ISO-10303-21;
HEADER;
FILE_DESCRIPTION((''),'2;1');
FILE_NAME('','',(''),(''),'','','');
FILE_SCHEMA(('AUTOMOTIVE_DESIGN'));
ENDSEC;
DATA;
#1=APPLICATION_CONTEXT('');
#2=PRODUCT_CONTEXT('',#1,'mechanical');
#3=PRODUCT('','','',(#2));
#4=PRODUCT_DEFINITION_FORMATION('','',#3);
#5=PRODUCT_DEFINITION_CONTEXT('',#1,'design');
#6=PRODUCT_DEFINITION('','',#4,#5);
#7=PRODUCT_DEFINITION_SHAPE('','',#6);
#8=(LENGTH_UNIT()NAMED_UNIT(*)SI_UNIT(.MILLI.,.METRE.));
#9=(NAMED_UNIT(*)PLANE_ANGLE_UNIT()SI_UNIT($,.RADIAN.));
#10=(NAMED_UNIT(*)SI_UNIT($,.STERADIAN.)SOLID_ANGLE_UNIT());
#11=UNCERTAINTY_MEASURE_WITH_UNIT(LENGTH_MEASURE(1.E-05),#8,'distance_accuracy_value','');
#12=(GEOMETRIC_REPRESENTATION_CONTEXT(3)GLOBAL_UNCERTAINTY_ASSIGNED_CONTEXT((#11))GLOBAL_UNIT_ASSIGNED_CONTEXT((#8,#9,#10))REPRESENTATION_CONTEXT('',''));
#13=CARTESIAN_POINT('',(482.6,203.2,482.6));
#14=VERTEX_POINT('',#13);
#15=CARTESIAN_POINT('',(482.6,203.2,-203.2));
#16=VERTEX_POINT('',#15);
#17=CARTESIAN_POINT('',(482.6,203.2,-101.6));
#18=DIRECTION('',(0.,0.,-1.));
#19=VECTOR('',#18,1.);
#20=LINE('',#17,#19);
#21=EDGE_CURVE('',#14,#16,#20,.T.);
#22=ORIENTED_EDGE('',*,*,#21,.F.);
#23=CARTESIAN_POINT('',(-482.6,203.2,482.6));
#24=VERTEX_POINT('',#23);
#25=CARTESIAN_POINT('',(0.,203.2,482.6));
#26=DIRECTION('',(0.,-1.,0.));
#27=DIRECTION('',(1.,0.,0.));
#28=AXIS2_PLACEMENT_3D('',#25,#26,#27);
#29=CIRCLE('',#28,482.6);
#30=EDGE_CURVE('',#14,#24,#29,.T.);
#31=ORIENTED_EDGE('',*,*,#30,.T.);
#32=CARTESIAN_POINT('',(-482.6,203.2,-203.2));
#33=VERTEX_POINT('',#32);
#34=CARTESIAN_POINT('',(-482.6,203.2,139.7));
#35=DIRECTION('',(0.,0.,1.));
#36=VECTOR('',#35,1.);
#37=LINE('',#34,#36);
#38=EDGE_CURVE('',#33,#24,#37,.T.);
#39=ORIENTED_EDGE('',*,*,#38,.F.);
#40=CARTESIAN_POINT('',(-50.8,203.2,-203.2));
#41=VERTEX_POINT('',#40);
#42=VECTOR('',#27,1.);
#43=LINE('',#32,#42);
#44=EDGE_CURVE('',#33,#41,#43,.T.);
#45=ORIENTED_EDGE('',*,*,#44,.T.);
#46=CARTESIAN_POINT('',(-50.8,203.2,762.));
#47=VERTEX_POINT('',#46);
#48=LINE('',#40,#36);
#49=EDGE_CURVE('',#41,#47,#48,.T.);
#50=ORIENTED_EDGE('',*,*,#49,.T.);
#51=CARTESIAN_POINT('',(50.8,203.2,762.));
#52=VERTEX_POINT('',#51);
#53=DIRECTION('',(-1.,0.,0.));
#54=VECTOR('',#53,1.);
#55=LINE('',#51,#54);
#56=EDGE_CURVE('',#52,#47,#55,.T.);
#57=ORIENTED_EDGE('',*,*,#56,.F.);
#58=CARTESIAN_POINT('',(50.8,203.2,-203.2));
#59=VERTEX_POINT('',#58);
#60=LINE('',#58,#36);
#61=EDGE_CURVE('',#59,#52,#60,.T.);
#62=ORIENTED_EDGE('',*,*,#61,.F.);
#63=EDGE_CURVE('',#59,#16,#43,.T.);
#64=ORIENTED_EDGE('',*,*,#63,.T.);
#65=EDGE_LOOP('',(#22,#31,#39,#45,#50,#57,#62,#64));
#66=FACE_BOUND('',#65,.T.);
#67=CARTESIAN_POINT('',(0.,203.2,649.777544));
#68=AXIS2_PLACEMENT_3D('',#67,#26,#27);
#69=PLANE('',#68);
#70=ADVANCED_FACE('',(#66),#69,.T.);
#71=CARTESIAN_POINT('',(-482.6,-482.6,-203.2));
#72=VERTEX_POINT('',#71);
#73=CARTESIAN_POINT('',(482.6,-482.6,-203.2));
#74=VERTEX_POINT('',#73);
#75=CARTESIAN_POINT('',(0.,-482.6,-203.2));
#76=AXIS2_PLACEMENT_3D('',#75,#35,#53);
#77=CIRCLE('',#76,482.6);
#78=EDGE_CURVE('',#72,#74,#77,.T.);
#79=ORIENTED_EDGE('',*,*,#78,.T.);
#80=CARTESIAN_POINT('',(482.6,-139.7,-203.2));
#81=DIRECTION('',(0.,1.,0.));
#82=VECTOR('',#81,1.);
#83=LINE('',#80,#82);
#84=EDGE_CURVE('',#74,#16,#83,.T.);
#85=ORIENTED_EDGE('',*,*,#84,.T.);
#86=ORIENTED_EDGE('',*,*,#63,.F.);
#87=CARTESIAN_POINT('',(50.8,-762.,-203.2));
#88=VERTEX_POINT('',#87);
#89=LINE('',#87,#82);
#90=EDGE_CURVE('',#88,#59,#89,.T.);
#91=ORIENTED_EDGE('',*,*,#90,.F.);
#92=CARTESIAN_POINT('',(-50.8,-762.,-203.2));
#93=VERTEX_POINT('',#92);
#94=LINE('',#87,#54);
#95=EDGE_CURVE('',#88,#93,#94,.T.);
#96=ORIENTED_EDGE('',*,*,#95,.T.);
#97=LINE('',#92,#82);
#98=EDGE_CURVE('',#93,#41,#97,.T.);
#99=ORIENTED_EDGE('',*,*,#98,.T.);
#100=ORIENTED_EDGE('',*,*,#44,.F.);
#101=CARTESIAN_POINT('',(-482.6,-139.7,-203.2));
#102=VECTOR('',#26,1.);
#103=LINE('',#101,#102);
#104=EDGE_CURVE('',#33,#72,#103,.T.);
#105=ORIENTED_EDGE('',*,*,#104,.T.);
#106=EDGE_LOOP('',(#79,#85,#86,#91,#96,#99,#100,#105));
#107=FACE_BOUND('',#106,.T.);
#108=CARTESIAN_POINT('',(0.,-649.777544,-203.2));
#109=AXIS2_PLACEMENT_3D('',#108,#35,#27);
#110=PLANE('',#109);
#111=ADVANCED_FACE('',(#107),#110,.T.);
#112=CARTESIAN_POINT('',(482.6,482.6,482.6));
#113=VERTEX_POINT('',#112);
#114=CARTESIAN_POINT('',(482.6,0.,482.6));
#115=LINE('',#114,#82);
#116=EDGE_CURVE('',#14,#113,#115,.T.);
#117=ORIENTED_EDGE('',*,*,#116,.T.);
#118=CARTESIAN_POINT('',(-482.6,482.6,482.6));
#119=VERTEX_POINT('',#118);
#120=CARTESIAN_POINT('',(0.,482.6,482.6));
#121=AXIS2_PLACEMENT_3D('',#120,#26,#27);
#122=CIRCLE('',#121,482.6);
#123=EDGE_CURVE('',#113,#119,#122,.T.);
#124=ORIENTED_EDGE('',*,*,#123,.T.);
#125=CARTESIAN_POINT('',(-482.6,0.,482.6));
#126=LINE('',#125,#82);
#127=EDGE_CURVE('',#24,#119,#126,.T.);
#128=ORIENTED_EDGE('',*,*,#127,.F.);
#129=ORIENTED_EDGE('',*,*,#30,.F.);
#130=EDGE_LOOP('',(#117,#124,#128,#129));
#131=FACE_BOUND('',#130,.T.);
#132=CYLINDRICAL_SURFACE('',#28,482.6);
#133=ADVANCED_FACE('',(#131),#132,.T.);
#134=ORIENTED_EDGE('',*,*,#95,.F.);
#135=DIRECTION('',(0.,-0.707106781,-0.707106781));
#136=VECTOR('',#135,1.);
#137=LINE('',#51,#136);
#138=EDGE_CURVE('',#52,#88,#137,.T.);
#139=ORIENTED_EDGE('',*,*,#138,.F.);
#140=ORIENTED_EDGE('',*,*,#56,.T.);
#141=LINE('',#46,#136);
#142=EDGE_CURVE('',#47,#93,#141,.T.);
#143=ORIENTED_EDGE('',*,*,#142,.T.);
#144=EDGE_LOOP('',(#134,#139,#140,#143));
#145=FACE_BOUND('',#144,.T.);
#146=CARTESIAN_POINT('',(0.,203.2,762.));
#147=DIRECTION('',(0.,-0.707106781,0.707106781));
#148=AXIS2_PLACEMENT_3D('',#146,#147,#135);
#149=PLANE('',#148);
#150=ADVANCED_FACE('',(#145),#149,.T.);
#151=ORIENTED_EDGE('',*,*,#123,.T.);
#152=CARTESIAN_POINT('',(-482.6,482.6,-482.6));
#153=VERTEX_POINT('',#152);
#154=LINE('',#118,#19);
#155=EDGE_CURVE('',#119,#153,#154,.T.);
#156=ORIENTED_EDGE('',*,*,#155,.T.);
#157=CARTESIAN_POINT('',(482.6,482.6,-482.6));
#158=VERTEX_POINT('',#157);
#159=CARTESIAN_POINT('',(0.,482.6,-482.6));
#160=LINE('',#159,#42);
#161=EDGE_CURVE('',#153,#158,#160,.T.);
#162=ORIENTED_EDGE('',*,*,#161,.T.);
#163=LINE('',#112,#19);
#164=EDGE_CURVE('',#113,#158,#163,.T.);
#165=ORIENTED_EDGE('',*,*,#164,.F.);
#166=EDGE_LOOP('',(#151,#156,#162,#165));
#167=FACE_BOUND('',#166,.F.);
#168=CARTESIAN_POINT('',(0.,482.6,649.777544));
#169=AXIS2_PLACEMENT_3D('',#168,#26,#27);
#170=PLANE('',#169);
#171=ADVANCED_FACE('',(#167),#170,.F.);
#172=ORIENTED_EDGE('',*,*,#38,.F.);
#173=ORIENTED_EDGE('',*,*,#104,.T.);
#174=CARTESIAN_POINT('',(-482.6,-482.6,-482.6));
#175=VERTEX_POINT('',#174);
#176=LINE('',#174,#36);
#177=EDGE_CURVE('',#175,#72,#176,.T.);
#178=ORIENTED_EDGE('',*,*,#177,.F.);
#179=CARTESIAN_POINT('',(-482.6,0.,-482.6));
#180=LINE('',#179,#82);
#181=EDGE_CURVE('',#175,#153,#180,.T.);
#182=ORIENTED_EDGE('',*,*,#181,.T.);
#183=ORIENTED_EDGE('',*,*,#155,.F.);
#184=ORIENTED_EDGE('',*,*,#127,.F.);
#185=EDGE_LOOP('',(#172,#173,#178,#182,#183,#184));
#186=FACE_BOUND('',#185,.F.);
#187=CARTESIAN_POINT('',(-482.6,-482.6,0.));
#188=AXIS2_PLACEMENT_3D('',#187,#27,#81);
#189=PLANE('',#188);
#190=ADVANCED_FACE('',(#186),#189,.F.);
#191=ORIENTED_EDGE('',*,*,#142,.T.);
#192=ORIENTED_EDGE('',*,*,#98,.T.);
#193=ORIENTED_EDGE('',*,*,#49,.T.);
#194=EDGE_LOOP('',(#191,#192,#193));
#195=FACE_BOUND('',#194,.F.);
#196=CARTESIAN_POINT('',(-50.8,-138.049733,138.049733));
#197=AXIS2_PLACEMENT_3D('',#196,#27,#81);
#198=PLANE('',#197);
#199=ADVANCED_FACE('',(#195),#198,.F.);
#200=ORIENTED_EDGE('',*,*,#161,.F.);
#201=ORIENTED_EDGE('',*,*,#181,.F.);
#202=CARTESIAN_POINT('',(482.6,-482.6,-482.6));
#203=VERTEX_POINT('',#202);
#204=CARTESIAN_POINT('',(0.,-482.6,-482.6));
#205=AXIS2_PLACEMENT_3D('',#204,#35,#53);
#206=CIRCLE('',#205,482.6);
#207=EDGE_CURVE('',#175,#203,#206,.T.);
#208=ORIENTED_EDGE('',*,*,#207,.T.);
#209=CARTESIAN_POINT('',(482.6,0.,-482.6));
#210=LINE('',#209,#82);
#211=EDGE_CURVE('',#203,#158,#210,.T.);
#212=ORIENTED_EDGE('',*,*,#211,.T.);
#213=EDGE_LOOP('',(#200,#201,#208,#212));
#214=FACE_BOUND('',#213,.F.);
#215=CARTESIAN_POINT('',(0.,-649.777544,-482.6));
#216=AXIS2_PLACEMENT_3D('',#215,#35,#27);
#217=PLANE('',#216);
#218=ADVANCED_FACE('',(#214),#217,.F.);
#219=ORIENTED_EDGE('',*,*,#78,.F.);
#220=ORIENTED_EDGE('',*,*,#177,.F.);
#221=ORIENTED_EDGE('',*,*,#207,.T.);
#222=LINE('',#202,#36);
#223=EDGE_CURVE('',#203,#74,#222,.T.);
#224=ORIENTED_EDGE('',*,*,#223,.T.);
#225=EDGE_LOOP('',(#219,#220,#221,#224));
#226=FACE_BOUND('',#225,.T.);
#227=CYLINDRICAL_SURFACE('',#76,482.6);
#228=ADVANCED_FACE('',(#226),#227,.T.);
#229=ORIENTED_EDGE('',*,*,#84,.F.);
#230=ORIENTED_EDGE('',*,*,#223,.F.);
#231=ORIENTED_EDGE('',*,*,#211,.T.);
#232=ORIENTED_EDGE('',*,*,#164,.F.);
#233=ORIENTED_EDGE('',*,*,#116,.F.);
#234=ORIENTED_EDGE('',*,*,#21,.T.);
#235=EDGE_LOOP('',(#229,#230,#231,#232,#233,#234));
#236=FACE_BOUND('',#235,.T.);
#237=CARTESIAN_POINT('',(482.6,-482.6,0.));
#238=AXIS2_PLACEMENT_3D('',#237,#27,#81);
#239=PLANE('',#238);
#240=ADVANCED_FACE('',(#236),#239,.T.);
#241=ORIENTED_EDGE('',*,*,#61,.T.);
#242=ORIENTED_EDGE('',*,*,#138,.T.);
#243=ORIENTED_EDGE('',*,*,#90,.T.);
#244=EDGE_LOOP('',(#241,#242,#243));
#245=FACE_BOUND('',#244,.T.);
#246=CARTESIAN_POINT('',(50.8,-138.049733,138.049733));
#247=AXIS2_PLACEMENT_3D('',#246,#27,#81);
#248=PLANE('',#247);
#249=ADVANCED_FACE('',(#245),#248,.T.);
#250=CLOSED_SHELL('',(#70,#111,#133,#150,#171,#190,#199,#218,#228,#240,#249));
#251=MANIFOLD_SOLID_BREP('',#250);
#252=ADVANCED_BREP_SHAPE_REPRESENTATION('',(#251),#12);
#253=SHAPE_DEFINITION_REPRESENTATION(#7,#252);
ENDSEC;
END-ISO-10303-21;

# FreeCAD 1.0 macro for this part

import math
import FreeCAD as App
import Part
import Sketcher
Q = App.Units.Quantity


def add_polygon(sketch, points):
    """Adds a closed chain of lines whose ends are joined by coincident constraints."""
    first, n = sketch.GeometryCount, len(points)
    for a, b in zip(points, points[1:] + points[:1]):
        sketch.addGeometry(Part.LineSegment(App.Vector(*a, 0), App.Vector(*b, 0)), False)
    for i in range(n):
        sketch.addConstraint(Sketcher.Constraint("Coincident", first + i, 2, first + (i + 1) % n, 1))

doc = App.newDocument("Part")
body = doc.addObject("PartDesign::Body", "Body")

# Sketch on XY plane
sketch1 = doc.addObject("Sketcher::SketchObject", "Sketch")
body.addObject(sketch1)
sketch1.AttachmentSupport = (doc.XY_Plane, [""])
sketch1.MapMode = "FlatFace"
add_polygon(sketch1, [(-482.6, 482.6), (-482.6, -482.6), (482.6, -482.6), (482.6, 482.6)])  # lines 0-3
sketch1.addConstraint(Sketcher.Constraint("Vertical", 0))
sketch1.addConstraint(Sketcher.Constraint("Horizontal", 1))
sketch1.addConstraint(Sketcher.Constraint("Vertical", 2))
sketch1.addConstraint(Sketcher.Constraint("Horizontal", 3))
sketch1.addConstraint(Sketcher.Constraint("Symmetric", 0, 2, 2, 2, -1, 1))
sketch1.addConstraint(Sketcher.Constraint("Equal", 3, 0))
sketch1.addConstraint(Sketcher.Constraint("DistanceX", 1, 1, 1, 2, Q("38 in")))
pad1 = doc.addObject("PartDesign::Pad", "Pad")
body.addObject(pad1)
pad1.Profile = sketch1
pad1.Length = Q("38 in")
pad1.Midplane = True

# Sketch on YZ plane
sketch2 = doc.addObject("Sketcher::SketchObject", "Sketch001")
body.addObject(sketch2)
sketch2.AttachmentSupport = (doc.YZ_Plane, [""])
sketch2.MapMode = "FlatFace"
sketch2.AttachmentOffset = App.Placement(App.Vector(0, 0, -19 * 25.4), App.Rotation())
add_polygon(sketch2, [(203.2, 482.6), (203.2, -203.2), (-482.6, -203.2), (-482.6, 482.6)])  # lines 0-3
sketch2.addConstraint(Sketcher.Constraint("Vertical", 0))
sketch2.addConstraint(Sketcher.Constraint("Horizontal", 1))
sketch2.addConstraint(Sketcher.Constraint("Vertical", 2))
sketch2.addConstraint(Sketcher.Constraint("Horizontal", 3))
sketch2.addConstraint(Sketcher.Constraint("Equal", 3, 0))
sketch2.addConstraint(Sketcher.Constraint("DistanceX", 1, 2, 1, 1, Q("27 in")))
sketch2.addConstraint(Sketcher.Constraint("DistanceX", -1, 1, 0, 2, Q("8 in")))
sketch2.addConstraint(Sketcher.Constraint("DistanceY", 0, 2, -1, 1, Q("8 in")))
pocket1 = doc.addObject("PartDesign::Pocket", "Pocket")
body.addObject(pocket1)
pocket1.Profile = sketch2
pocket1.Type = "ThroughAll"
pocket1.Reversed = True

# Sketch on XZ plane
sketch3 = doc.addObject("Sketcher::SketchObject", "Sketch002")
body.addObject(sketch3)
sketch3.AttachmentSupport = (doc.XZ_Plane, [""])
sketch3.MapMode = "FlatFace"
sketch3.AttachmentOffset = App.Placement(App.Vector(0, 0, -8 * 25.4), App.Rotation())
sketch3.addGeometry(Part.LineSegment(App.Vector(-482.6, 482.6, 0), App.Vector(482.6, 482.6, 0)), False)
sketch3.addGeometry(Part.ArcOfCircle(Part.Circle(App.Vector(0, 482.6, 0), App.Vector(0, 0, 1), 482.6), math.radians(0), math.radians(180)), False)
sketch3.addConstraint(Sketcher.Constraint("Coincident", 0, 1, 1, 2))
sketch3.addConstraint(Sketcher.Constraint("Coincident", 1, 1, 0, 2))
sketch3.addConstraint(Sketcher.Constraint("Horizontal", 0))
sketch3.addConstraint(Sketcher.Constraint("PointOnObject", 1, 3, -2))
sketch3.addConstraint(Sketcher.Constraint("Horizontal", 1, 3, 0, 1))
sketch3.addConstraint(Sketcher.Constraint("Radius", 1, Q("19 in")))
sketch3.addConstraint(Sketcher.Constraint("DistanceY", -1, 1, 1, 3, Q("19 in")))
pad2 = doc.addObject("PartDesign::Pad", "Pad001")
body.addObject(pad2)
pad2.Profile = sketch3
pad2.Length = Q("11 in")
pad2.Reversed = True

# Sketch on XY plane
sketch4 = doc.addObject("Sketcher::SketchObject", "Sketch003")
body.addObject(sketch4)
sketch4.AttachmentSupport = (doc.XY_Plane, [""])
sketch4.MapMode = "FlatFace"
sketch4.AttachmentOffset = App.Placement(App.Vector(0, 0, -8 * 25.4), App.Rotation())
sketch4.addGeometry(Part.LineSegment(App.Vector(482.6, -482.6, 0), App.Vector(-482.6, -482.6, 0)), False)
sketch4.addGeometry(Part.ArcOfCircle(Part.Circle(App.Vector(0, -482.6, 0), App.Vector(0, 0, 1), 482.6), math.radians(180), math.radians(360)), False)
sketch4.addConstraint(Sketcher.Constraint("Coincident", 0, 1, 1, 2))
sketch4.addConstraint(Sketcher.Constraint("Coincident", 1, 1, 0, 2))
sketch4.addConstraint(Sketcher.Constraint("Horizontal", 0))
sketch4.addConstraint(Sketcher.Constraint("PointOnObject", 1, 3, -2))
sketch4.addConstraint(Sketcher.Constraint("Horizontal", 1, 3, 0, 1))
sketch4.addConstraint(Sketcher.Constraint("Radius", 1, Q("19 in")))
sketch4.addConstraint(Sketcher.Constraint("DistanceY", 1, 3, -1, 1, Q("19 in")))
pad3 = doc.addObject("PartDesign::Pad", "Pad002")
body.addObject(pad3)
pad3.Profile = sketch4
pad3.Length = Q("11 in")
pad3.Reversed = True

# Sketch on YZ plane
sketch5 = doc.addObject("Sketcher::SketchObject", "Sketch004")
body.addObject(sketch5)
sketch5.AttachmentSupport = (doc.YZ_Plane, [""])
sketch5.MapMode = "FlatFace"
add_polygon(sketch5, [(-762, -203.2), (203.2, -203.2), (203.2, 762)])  # lines 0-2
sketch5.addConstraint(Sketcher.Constraint("Horizontal", 0))
sketch5.addConstraint(Sketcher.Constraint("Vertical", 1))
sketch5.addConstraint(Sketcher.Constraint("Equal", 0, 1))
sketch5.addConstraint(Sketcher.Constraint("DistanceX", 0, 1, 0, 2, Q("38 in")))
sketch5.addConstraint(Sketcher.Constraint("DistanceX", -1, 1, 0, 2, Q("8 in")))
sketch5.addConstraint(Sketcher.Constraint("DistanceY", 0, 2, -1, 1, Q("8 in")))
pad4 = doc.addObject("PartDesign::Pad", "Pad003")
body.addObject(pad4)
pad4.Profile = sketch5
pad4.Length = Q("4 in")
pad4.Midplane = True

doc.recompute()
